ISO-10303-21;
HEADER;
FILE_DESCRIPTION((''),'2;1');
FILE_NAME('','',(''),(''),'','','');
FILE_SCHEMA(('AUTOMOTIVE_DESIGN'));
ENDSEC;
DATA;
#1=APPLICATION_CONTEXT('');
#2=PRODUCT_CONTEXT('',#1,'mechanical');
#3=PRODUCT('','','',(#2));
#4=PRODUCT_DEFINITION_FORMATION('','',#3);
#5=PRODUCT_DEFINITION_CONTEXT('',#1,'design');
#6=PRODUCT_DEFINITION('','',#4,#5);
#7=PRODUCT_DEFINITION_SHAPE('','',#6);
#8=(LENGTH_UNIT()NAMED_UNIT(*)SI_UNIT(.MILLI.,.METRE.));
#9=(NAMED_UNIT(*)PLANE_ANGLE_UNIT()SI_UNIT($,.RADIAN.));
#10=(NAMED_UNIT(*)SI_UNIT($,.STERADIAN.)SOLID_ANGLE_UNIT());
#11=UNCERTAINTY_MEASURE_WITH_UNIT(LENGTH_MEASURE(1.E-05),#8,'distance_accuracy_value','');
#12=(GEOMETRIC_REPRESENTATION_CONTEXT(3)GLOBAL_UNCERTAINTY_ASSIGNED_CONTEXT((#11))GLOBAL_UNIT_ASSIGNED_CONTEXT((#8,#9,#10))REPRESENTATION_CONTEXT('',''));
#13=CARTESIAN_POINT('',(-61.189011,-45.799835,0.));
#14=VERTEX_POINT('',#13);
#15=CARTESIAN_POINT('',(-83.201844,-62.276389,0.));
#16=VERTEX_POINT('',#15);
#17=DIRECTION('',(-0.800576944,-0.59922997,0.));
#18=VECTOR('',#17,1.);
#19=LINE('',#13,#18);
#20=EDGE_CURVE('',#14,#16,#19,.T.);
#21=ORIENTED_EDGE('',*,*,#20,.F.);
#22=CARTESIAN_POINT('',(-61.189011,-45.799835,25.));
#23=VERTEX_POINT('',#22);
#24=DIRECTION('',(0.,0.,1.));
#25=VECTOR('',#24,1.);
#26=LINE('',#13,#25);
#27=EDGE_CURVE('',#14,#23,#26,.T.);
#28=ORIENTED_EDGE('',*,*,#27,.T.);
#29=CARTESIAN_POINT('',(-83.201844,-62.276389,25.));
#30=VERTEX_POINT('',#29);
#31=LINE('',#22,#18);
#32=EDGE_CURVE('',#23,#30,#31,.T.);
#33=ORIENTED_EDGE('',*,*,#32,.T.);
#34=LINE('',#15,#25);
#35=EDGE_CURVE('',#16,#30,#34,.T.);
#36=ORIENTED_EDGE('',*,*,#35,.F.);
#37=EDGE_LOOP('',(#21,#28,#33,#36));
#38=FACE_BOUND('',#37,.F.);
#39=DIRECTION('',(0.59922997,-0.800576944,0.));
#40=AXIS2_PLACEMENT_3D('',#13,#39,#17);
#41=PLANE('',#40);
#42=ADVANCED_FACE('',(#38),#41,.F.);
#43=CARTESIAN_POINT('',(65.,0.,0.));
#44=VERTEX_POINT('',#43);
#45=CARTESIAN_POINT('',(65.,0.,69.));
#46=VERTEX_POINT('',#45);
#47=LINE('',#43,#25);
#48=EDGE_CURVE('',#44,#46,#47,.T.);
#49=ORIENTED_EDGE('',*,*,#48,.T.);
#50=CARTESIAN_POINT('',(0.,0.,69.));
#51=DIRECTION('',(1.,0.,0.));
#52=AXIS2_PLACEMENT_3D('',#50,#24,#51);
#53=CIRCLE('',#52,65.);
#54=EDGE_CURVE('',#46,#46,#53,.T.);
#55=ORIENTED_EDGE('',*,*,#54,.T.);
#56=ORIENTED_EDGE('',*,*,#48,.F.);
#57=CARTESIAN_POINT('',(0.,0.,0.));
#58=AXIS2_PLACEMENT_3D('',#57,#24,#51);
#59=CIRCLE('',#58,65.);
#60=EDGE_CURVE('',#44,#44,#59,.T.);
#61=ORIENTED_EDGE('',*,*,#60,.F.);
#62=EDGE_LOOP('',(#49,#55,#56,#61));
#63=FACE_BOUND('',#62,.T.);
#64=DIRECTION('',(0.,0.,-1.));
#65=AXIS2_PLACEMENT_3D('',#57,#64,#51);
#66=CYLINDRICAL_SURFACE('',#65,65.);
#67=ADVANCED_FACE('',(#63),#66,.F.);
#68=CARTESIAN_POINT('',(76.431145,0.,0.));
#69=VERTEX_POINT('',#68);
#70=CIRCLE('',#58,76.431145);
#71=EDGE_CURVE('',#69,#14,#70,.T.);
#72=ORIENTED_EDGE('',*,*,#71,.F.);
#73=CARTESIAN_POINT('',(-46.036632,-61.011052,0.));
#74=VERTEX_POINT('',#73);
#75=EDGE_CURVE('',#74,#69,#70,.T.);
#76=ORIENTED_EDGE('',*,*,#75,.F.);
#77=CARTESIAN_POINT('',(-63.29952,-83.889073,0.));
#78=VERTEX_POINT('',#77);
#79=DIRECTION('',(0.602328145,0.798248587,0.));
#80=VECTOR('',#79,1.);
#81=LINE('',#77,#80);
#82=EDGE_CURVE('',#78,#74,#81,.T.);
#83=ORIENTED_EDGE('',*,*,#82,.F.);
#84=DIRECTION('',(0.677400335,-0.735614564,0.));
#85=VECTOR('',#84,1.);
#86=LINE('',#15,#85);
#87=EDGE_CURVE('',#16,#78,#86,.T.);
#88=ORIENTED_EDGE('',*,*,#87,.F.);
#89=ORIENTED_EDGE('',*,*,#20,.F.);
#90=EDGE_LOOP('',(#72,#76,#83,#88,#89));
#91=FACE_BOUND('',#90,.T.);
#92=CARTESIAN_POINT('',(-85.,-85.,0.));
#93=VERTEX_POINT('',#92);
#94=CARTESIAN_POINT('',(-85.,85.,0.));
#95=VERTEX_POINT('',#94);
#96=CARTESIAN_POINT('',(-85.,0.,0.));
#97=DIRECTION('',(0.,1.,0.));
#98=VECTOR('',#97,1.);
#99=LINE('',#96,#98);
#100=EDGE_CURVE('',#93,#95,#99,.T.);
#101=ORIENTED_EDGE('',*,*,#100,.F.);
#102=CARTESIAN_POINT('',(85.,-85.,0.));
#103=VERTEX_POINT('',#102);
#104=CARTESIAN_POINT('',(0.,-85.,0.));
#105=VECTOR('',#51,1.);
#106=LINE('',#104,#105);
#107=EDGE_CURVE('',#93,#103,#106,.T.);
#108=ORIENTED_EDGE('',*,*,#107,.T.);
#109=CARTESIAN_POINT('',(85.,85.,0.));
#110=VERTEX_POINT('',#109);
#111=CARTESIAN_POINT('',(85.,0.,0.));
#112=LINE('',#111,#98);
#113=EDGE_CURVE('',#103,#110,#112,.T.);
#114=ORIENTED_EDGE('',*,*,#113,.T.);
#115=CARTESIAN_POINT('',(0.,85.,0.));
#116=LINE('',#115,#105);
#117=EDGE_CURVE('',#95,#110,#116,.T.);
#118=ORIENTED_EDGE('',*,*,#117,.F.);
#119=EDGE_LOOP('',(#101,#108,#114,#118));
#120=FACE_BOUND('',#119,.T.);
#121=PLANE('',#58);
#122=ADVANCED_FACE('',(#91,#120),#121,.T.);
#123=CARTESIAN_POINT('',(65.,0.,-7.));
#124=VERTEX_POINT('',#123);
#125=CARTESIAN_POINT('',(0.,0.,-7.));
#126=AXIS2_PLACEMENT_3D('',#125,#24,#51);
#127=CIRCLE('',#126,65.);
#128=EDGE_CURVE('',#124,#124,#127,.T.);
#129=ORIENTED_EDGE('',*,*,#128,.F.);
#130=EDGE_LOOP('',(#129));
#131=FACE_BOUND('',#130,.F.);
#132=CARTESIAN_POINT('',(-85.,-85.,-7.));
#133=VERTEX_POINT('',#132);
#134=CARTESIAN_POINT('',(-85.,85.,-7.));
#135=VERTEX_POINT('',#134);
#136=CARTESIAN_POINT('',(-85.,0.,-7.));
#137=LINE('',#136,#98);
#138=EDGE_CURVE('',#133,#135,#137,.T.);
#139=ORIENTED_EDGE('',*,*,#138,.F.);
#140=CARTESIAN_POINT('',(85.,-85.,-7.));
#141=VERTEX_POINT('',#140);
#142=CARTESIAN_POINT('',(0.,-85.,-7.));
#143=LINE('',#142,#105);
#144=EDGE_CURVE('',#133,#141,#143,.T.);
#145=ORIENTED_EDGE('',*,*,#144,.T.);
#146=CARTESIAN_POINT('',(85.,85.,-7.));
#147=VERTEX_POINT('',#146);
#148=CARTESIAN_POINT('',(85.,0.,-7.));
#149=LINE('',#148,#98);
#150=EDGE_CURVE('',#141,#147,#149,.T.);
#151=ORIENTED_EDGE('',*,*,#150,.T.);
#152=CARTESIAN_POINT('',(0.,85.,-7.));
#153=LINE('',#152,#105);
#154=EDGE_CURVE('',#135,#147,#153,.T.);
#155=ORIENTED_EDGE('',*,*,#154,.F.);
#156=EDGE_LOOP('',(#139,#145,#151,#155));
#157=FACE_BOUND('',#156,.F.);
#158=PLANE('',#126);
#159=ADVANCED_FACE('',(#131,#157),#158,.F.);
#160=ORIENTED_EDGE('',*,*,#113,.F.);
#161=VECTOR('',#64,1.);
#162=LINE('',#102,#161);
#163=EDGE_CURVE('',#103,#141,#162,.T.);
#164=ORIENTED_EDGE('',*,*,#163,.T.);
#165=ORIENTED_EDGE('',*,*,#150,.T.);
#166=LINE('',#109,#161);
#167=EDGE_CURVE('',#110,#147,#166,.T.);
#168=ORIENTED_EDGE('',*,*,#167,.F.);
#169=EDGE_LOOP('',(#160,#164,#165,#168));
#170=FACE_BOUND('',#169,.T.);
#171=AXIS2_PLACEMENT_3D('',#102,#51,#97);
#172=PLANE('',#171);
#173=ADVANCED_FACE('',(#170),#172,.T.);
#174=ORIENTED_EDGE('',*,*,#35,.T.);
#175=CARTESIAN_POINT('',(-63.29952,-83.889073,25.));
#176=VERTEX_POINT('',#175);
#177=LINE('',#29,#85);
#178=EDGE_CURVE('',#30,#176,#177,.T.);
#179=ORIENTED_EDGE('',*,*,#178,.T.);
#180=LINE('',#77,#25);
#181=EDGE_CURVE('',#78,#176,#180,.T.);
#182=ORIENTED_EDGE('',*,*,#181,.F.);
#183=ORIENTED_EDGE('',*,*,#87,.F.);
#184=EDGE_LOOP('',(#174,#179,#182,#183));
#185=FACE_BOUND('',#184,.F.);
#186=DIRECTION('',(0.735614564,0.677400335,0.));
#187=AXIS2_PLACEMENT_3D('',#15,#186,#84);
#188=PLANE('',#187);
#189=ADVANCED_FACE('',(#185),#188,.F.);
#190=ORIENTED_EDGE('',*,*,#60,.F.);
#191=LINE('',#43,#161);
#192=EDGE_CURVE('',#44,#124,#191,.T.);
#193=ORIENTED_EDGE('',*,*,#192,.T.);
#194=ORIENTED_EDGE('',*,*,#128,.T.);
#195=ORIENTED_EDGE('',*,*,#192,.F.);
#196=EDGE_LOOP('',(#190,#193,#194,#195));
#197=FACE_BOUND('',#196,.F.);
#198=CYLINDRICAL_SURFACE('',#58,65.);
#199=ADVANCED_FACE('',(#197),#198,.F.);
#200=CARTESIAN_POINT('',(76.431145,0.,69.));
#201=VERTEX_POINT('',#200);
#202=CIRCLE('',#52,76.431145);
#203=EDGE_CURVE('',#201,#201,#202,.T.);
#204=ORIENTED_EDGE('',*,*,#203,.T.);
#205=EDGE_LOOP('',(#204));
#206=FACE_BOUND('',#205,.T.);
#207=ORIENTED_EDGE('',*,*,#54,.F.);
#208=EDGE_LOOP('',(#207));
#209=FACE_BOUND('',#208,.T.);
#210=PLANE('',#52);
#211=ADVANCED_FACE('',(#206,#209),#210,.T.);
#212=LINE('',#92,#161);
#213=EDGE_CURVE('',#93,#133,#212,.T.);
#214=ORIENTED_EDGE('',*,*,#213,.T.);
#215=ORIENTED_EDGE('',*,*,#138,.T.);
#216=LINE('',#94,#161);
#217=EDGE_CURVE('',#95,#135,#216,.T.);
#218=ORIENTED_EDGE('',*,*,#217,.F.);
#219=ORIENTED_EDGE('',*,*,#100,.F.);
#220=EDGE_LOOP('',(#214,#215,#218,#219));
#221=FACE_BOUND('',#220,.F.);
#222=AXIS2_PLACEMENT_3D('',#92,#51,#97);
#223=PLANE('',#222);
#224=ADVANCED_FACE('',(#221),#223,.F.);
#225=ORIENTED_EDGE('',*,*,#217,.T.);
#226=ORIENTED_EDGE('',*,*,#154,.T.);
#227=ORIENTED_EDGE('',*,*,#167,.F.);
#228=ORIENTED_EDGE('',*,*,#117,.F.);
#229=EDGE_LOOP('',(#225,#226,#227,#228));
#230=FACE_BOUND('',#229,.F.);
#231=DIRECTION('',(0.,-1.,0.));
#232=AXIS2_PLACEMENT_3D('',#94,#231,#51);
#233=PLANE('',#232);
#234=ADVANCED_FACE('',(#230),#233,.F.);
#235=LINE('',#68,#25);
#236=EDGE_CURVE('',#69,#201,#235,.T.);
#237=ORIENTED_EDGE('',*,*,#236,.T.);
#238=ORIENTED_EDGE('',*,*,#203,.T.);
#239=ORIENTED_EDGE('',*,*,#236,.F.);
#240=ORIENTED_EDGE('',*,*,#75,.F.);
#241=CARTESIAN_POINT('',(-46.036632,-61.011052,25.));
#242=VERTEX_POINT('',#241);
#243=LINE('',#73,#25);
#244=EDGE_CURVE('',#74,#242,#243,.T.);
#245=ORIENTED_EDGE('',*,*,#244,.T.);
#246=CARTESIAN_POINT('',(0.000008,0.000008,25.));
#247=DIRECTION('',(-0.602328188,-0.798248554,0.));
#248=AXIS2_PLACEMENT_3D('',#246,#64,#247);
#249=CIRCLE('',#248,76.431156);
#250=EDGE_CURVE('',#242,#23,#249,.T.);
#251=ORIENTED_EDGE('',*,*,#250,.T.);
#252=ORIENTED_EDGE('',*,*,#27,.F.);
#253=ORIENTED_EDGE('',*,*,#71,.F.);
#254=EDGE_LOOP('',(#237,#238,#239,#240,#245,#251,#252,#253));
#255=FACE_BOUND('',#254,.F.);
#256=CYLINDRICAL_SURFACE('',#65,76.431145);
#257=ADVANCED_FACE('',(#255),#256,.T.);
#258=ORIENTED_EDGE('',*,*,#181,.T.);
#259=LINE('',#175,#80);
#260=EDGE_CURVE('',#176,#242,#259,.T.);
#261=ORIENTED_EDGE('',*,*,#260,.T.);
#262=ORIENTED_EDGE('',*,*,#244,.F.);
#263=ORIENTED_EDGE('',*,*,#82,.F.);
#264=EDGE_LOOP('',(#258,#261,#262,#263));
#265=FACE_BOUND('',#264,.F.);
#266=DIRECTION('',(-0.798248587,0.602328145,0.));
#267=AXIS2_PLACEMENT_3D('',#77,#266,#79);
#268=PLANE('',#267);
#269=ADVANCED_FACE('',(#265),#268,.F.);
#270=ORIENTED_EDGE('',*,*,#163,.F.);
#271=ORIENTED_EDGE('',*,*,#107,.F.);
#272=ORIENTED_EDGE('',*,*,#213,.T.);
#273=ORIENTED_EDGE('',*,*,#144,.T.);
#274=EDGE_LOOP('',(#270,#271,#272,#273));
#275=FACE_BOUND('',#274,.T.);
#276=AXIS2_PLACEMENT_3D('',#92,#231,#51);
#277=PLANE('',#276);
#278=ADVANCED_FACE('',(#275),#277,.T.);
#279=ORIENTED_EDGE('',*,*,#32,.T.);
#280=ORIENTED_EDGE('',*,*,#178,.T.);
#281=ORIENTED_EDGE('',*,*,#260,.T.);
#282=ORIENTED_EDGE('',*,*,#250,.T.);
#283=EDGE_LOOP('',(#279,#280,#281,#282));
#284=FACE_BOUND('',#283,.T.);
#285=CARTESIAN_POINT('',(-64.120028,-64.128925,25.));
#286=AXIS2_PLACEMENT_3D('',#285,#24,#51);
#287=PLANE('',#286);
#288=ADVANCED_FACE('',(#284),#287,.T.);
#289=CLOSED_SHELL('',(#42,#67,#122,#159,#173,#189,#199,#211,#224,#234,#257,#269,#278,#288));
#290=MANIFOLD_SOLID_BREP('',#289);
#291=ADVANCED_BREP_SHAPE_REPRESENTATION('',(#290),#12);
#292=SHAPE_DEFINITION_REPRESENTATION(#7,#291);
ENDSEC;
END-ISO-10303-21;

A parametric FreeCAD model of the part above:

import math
import FreeCAD as App
import Part
import Sketcher
Q = App.Units.Quantity


def add_polygon(sketch, points):
    """Adds a closed chain of lines whose ends are joined by coincident constraints."""
    first, n = sketch.GeometryCount, len(points)
    for a, b in zip(points, points[1:] + points[:1]):
        sketch.addGeometry(Part.LineSegment(App.Vector(*a, 0), App.Vector(*b, 0)), False)
    for i in range(n):
        sketch.addConstraint(Sketcher.Constraint("Coincident", first + i, 2, first + (i + 1) % n, 1))

doc = App.newDocument("Part")
body = doc.addObject("PartDesign::Body", "Body")

# Sketch on XY plane
sketch1 = body.newObject("Sketcher::SketchObject", "Sketch")
sketch1.AttachmentSupport = (doc.getObject("XY_Plane"), [""])
sketch1.MapMode = "FlatFace"
sketch1.addGeometry([
    Part.Circle(App.Vector(0, 0, 0), App.Vector(0, 0, 1), 76),
    Part.Circle(App.Vector(0, 0, 0), App.Vector(0, 0, 1), 65),
], False)
sketch1.addConstraint([
    Sketcher.Constraint("Coincident", 0, 3, -1, 1),
    Sketcher.Constraint("Coincident", 1, 3, -1, 1),
    Sketcher.Constraint("Diameter", 1, Q("130 mm")),
    Sketcher.Constraint("Diameter", 0, Q("152.86229 mm")),
])
pad1 = body.newObject("PartDesign::Pad", "Pad")
pad1.Profile = sketch1
pad1.Length = 69

# Sketch on XY plane
sketch2 = body.newObject("Sketcher::SketchObject", "Sketch001")
sketch2.AttachmentSupport = (doc.getObject("XY_Plane"), [""])
sketch2.MapMode = "FlatFace"
add_polygon(sketch2, [(-85, 85), (-85, -85), (85, -85), (85, 85)])  # lines 0-3
sketch2.addGeometry(Part.Circle(App.Vector(0, 0, 0), App.Vector(0, 0, 1), 65), False)  # 4
sketch2.addConstraint([
    Sketcher.Constraint("Vertical", 0),
    Sketcher.Constraint("Horizontal", 1),
    Sketcher.Constraint("Vertical", 2),
    Sketcher.Constraint("Horizontal", 3),
    Sketcher.Constraint("Coincident", 4, 3, -1, 1),
    Sketcher.Constraint("Symmetric", 0, 2, 2, 2, -1, 1),
    Sketcher.Constraint("Equal", 3, 0),
    Sketcher.Constraint("Diameter", 4, Q("130 mm")),
    Sketcher.Constraint("DistanceX", 1, 1, 1, 2, Q("170 mm")),
])
pad2 = body.newObject("PartDesign::Pad", "Pad001")
pad2.Profile = sketch2
pad2.Length = 7
pad2.Reversed = True

# Sketch on XY plane
sketch3 = body.newObject("Sketcher::SketchObject", "Sketch002")
sketch3.AttachmentSupport = (doc.getObject("XY_Plane"), [""])
sketch3.MapMode = "FlatFace"
sketch3.addGeometry([
    Part.ArcOfCircle(Part.Circle(App.Vector(0, 0, 0), App.Vector(0, 0, 1), 76), math.radians(-143.19), math.radians(-127.04)),
    Part.LineSegment(App.Vector(-61, -46, 0), App.Vector(-83, -62, 0)),
    Part.LineSegment(App.Vector(-83, -62, 0), App.Vector(-63, -84, 0)),
    Part.LineSegment(App.Vector(-63, -84, 0), App.Vector(-46, -61, 0)),
], False)
sketch3.addConstraint([
    Sketcher.Constraint("Coincident", 0, 1, 1, 1),
    Sketcher.Constraint("Coincident", 1, 2, 2, 1),
    Sketcher.Constraint("Coincident", 2, 2, 3, 1),
    Sketcher.Constraint("Coincident", 3, 2, 0, 2),
    Sketcher.Constraint("Radius", 0, Q("76.431156 mm")),
    Sketcher.Constraint("Distance", 1, Q("27.496212 mm")),
    Sketcher.Constraint("Distance", 3, Q("28.660271 mm")),
    Sketcher.Constraint("DistanceX", 0, 1, -1, 1, Q("61.189011 mm")),
    Sketcher.Constraint("DistanceY", 1, 2, -1, 1, Q("62.276389 mm")),
    Sketcher.Constraint("DistanceX", 2, 2, -1, 1, Q("63.29952 mm")),
    Sketcher.Constraint("DistanceX", 3, 2, -1, 1, Q("46.036632 mm")),
    Sketcher.Constraint("DistanceX", 0, 1, 0, 3, Q("61.189019 mm")),
    Sketcher.Constraint("DistanceX", 1, 2, 0, 3, Q("83.201852 mm")),
])
pad3 = body.newObject("PartDesign::Pad", "Pad002")
pad3.Profile = sketch3
pad3.Length = 25

doc.recompute()
